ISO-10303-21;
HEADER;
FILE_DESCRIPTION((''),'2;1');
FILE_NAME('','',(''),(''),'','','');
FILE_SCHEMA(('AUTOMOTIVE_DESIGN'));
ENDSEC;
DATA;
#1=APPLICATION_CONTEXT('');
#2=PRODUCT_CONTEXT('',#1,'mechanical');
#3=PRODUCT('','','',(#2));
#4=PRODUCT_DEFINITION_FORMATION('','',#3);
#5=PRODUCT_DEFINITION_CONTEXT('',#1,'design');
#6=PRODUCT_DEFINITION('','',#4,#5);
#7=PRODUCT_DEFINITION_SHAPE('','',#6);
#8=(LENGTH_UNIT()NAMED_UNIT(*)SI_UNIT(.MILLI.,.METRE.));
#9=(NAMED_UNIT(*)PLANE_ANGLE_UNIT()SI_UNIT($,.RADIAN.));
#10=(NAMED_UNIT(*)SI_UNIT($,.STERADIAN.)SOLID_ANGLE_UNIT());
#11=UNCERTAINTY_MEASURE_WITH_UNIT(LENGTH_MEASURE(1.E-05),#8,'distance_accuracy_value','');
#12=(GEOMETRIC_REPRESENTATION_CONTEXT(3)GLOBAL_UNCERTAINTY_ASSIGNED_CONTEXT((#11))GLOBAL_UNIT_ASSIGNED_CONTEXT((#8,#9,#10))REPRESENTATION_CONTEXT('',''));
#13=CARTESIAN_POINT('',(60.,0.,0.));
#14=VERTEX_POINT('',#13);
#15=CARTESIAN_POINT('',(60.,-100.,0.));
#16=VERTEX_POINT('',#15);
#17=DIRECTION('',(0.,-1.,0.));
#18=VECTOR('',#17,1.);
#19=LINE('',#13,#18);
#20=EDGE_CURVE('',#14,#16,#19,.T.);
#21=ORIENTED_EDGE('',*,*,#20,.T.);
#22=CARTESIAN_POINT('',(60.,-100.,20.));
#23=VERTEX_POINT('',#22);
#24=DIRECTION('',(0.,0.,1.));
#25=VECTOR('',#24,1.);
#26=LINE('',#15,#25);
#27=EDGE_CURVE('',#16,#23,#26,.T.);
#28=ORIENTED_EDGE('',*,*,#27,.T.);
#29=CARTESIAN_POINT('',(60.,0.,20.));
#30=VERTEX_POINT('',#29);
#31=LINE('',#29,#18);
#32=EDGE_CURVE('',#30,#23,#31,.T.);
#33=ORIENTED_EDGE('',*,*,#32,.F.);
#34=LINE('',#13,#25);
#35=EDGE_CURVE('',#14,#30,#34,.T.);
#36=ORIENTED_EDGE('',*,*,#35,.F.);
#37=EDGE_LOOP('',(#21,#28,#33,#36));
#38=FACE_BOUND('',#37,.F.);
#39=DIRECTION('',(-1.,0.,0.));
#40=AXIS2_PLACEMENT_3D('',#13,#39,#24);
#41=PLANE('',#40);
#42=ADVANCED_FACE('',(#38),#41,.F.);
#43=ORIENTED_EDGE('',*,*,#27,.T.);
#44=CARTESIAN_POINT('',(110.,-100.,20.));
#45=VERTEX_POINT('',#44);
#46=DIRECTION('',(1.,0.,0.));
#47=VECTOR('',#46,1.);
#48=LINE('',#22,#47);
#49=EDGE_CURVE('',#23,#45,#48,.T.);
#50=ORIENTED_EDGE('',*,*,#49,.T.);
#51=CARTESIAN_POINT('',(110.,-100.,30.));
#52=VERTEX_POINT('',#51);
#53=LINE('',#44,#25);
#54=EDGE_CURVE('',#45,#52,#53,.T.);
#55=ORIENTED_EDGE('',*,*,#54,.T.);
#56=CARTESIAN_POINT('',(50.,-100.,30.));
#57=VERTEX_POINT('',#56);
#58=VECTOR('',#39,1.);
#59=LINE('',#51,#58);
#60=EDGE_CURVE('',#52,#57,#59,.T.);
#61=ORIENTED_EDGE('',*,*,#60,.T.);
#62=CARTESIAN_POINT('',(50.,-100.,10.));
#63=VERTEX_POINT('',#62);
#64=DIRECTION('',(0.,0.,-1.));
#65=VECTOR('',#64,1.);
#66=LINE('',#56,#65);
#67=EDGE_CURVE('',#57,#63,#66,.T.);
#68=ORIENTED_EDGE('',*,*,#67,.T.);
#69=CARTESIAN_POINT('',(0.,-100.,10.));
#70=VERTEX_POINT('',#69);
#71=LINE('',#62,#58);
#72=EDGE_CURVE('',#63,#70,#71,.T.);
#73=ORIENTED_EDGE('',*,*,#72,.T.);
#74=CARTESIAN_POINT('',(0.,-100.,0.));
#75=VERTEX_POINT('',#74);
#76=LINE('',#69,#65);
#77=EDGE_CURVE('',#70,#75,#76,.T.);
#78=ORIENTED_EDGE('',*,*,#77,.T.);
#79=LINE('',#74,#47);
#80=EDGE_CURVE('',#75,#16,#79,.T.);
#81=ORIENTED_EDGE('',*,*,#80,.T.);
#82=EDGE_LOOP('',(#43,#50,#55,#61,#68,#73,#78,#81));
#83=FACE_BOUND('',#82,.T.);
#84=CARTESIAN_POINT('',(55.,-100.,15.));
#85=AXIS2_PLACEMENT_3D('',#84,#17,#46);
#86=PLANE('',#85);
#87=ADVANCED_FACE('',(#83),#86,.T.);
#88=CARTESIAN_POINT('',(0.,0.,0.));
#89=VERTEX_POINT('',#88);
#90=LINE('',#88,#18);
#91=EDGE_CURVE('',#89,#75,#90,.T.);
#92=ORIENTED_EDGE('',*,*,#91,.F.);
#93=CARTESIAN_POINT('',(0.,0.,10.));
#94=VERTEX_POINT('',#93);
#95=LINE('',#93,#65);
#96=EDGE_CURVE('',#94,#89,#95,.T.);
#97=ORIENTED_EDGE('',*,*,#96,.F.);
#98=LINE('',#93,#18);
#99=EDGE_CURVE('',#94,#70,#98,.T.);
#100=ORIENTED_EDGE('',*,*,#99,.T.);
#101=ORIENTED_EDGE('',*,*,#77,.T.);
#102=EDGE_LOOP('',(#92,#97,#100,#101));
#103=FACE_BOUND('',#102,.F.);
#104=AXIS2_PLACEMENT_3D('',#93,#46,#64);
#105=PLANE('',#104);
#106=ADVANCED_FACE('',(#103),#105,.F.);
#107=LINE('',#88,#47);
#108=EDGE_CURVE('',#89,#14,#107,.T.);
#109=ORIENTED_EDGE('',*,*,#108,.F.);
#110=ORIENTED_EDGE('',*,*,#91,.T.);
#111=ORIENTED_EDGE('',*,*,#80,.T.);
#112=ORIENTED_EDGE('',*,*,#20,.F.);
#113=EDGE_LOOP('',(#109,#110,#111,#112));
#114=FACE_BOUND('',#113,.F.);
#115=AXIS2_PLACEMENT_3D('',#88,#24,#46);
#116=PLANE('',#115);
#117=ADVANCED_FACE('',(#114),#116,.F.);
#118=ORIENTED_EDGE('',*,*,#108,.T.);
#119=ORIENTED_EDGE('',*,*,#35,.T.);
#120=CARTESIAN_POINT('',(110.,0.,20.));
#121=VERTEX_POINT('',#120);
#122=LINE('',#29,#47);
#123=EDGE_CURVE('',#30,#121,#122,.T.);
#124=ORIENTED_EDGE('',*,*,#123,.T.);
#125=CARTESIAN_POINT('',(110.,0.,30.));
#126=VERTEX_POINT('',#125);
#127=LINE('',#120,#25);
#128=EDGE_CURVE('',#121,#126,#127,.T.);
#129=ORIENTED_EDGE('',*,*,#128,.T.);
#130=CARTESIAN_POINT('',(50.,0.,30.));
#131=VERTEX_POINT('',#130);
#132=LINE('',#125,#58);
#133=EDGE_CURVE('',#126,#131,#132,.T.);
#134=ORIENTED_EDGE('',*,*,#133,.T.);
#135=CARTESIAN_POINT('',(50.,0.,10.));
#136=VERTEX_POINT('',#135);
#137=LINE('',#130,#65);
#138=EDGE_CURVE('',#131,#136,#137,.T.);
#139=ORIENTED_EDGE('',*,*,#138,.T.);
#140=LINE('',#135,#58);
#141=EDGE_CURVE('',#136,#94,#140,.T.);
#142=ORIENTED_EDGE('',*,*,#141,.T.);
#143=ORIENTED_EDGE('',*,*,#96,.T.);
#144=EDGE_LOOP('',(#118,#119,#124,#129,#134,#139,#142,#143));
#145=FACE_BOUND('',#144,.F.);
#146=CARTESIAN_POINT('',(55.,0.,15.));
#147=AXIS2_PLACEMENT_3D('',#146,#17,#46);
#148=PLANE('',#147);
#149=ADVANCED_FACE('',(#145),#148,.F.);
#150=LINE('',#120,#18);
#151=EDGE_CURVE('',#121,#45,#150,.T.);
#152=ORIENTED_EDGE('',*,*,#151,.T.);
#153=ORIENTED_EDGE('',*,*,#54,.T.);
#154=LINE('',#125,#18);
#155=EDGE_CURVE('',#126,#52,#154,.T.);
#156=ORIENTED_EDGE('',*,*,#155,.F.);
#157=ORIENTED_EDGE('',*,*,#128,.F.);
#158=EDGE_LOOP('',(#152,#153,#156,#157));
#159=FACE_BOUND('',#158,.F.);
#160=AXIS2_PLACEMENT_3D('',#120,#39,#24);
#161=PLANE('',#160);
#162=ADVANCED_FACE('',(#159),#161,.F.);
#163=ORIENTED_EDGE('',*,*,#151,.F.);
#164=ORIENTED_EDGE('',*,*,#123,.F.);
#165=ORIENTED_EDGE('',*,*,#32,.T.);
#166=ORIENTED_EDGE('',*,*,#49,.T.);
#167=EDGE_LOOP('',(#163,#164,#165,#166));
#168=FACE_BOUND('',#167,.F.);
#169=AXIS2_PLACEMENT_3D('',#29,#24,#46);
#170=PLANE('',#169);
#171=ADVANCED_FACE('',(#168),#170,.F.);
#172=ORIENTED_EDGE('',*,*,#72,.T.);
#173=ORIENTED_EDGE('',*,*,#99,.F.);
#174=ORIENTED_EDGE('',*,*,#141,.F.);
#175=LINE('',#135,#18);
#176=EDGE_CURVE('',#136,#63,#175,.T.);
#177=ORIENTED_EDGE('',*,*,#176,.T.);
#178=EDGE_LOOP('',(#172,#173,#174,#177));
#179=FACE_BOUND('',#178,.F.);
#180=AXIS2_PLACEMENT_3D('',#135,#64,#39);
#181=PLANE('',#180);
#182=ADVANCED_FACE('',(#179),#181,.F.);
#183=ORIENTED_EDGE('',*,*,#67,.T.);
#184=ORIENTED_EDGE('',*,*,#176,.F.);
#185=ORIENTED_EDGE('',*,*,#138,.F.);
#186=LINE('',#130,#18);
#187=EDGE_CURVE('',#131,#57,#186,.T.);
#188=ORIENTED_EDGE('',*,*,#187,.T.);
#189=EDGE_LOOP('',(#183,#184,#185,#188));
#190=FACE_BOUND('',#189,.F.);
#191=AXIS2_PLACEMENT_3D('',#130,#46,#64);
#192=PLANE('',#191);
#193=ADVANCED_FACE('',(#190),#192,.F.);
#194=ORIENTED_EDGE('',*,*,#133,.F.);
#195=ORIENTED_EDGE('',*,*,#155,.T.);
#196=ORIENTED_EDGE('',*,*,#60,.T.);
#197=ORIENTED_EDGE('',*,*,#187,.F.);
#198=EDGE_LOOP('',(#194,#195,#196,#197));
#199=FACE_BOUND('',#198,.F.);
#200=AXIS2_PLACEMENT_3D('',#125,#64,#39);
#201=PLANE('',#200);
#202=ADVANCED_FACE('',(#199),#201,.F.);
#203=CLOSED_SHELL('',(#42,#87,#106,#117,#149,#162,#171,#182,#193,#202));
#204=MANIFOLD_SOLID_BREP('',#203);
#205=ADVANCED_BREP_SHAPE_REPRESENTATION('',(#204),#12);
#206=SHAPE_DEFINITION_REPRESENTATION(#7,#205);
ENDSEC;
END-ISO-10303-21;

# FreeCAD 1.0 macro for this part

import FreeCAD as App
import Part
import Sketcher
from FreeCAD import Vector


def add_polygon(sketch, points):
    """Adds a closed chain of lines whose ends are joined by coincident constraints."""
    first, n = sketch.GeometryCount, len(points)
    for a, b in zip(points, points[1:] + points[:1]):
        sketch.addGeometry(Part.LineSegment(App.Vector(*a, 0), App.Vector(*b, 0)), False)
    for i in range(n):
        sketch.addConstraint(Sketcher.Constraint("Coincident", first + i, 2, first + (i + 1) % n, 1))

doc = App.newDocument("Part")
body = doc.addObject("PartDesign::Body", "Body")

# Sketch on XZ plane
sketch1 = body.newObject("Sketcher::SketchObject", "Sketch")
sketch1.AttachmentSupport = (doc.getObject("XZ_Plane"), [""])
sketch1.MapMode = "FlatFace"
add_polygon(sketch1, [(0, 0), (60, 0), (60, 20), (110, 20), (110, 30), (50, 30), (50, 10), (0, 10)])  # lines 0-7
sketch1.addConstraint(Sketcher.Constraint("Horizontal", 0))
sketch1.addConstraint(Sketcher.Constraint("Vertical", 1))
sketch1.addConstraint(Sketcher.Constraint("Horizontal", 2))
sketch1.addConstraint(Sketcher.Constraint("Vertical", 3))
sketch1.addConstraint(Sketcher.Constraint("Horizontal", 4))
sketch1.addConstraint(Sketcher.Constraint("Vertical", 5))
sketch1.addConstraint(Sketcher.Constraint("Horizontal", 6))
sketch1.addConstraint(Sketcher.Constraint("Vertical", 7))
sketch1.addConstraint(Sketcher.Constraint("Coincident", 7, 2, -1, 1))
sketch1.addConstraint(Sketcher.Constraint("Equal", 0, 4))
sketch1.addConstraint(Sketcher.Constraint("Equal", 1, 5))
sketch1.addConstraint(Sketcher.Constraint("DistanceX", 0, 1, 0, 2, 60.0))
sketch1.addConstraint(Sketcher.Constraint("DistanceX", 2, 1, 2, 2, 50.0))
sketch1.addConstraint(Sketcher.Constraint("DistanceY", 1, 1, 1, 2, 20.0))
sketch1.addConstraint(Sketcher.Constraint("DistanceY", 3, 1, 3, 2, 10.0))
pad1 = body.newObject("PartDesign::Pad", "Pad")
pad1.Profile = sketch1
pad1.Length = 100

doc.recompute()
